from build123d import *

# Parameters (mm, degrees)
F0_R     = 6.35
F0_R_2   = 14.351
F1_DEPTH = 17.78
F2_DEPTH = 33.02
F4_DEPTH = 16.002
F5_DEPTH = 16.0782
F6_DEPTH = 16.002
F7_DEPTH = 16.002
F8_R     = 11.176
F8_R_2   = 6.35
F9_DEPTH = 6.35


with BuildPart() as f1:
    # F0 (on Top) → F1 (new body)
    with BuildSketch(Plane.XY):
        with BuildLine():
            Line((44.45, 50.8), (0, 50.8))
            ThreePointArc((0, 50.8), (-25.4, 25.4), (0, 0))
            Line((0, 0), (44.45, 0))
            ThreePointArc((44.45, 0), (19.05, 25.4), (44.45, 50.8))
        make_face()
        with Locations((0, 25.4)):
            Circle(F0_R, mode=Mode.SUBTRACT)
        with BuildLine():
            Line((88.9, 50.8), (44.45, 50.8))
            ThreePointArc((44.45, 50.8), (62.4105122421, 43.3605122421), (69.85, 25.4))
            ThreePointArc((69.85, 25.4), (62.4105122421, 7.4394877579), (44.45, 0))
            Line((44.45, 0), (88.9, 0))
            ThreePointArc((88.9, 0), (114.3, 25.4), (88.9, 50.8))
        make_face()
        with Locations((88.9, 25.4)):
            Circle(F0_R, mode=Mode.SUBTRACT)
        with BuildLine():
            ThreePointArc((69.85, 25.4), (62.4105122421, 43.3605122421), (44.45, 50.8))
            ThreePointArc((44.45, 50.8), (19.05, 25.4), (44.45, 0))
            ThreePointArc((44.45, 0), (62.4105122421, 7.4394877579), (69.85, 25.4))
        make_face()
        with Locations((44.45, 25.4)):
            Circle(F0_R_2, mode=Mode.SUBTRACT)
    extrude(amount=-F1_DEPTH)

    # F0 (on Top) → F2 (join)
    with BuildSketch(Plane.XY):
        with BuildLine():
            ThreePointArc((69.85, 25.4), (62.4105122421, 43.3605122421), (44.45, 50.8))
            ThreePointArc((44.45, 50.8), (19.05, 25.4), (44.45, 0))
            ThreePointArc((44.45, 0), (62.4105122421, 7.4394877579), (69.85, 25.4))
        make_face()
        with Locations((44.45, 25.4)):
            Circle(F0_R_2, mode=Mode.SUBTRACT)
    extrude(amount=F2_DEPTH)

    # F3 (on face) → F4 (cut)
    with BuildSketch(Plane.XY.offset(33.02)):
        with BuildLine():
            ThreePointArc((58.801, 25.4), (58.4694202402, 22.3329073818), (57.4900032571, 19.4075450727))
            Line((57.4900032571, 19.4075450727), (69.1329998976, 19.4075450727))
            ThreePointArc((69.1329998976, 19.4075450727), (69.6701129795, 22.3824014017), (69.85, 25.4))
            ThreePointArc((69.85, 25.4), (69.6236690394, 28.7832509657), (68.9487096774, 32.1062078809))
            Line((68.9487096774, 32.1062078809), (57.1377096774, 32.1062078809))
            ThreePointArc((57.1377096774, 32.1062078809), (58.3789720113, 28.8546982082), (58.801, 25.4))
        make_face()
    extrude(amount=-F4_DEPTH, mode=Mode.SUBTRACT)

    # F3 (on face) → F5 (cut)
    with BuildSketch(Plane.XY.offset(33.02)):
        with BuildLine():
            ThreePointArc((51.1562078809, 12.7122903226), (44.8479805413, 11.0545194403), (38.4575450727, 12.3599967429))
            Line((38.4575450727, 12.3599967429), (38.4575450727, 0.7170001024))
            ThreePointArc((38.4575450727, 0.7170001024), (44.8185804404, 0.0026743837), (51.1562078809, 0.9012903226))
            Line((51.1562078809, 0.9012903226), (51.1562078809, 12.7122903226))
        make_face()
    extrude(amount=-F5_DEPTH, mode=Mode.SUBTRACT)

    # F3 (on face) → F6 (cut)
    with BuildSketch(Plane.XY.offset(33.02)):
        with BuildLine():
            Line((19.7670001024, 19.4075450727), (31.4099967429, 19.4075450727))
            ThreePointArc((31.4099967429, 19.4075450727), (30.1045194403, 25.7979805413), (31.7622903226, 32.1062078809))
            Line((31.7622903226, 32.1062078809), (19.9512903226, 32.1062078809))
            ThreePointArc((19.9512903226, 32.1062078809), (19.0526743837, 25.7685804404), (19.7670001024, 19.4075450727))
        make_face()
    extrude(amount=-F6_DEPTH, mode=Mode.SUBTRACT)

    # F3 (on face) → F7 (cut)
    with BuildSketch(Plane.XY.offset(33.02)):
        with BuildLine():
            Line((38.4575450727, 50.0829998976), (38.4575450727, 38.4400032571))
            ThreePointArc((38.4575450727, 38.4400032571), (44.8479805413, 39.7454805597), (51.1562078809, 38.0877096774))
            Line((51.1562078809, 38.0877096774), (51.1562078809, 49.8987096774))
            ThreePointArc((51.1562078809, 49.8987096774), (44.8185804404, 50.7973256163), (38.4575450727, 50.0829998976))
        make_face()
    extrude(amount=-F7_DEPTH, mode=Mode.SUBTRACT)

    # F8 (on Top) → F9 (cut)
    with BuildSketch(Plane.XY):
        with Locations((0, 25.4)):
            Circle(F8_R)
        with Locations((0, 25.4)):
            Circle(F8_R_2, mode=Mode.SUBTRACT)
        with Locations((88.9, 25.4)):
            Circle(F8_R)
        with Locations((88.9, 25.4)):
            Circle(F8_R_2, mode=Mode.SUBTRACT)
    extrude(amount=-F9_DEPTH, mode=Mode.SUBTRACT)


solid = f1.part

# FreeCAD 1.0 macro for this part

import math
import FreeCAD as App
import Part
import Sketcher
from FreeCAD import Vector
Q = App.Units.Quantity

doc = App.newDocument("Part")
body = doc.addObject("PartDesign::Body", "Body")

sketch1 = doc.addObject("Sketcher::SketchObject", "Sketch")
body.addObject(sketch1)
sketch1.AttachmentSupport = (doc.XY_Plane, [""])
sketch1.MapMode = "FlatFace"
sketch1.addGeometry(Part.ArcOfCircle(Part.Circle(Vector(0, 25.4, 0), Vector(0, 0, 1), 25.4), math.radians(90), math.radians(270)), False)
sketch1.addGeometry(Part.LineSegment(Vector(0, 0, 0), Vector(88.9, 0, 0)), False)
sketch1.addGeometry(Part.ArcOfCircle(Part.Circle(Vector(88.9, 25.4, 0), Vector(0, 0, 1), 25.4), math.radians(-90), math.radians(90)), False)
sketch1.addGeometry(Part.LineSegment(Vector(88.9, 50.8, 0), Vector(0, 50.8, 0)), False)
sketch1.addGeometry(Part.Circle(Vector(0, 25.4, 0), Vector(0, 0, 1), 6.35), False)
sketch1.addGeometry(Part.Circle(Vector(44.45, 25.4, 0), Vector(0, 0, 1), 14.351), False)
sketch1.addGeometry(Part.Circle(Vector(88.9, 25.4, 0), Vector(0, 0, 1), 6.35), False)
sketch1.addConstraint(Sketcher.Constraint("Tangent", 0, 2, 1, 1))
sketch1.addConstraint(Sketcher.Constraint("Tangent", 1, 2, 2, 1))
sketch1.addConstraint(Sketcher.Constraint("Tangent", 2, 2, 3, 1))
sketch1.addConstraint(Sketcher.Constraint("Tangent", 3, 2, 0, 1))
sketch1.addConstraint(Sketcher.Constraint("Horizontal", 1))
sketch1.addConstraint(Sketcher.Constraint("Horizontal", 3))
sketch1.addConstraint(Sketcher.Constraint("Coincident", 0, 2, -1, 1))
sketch1.addConstraint(Sketcher.Constraint("Coincident", 4, 3, 0, 3))
sketch1.addConstraint(Sketcher.Constraint("Coincident", 6, 3, 2, 3))
sketch1.addConstraint(Sketcher.Constraint("Equal", 4, 6))
sketch1.addConstraint(Sketcher.Constraint("Horizontal", 4, 3, 5, 3))
sketch1.addConstraint(Sketcher.Constraint("Radius", 0, Q("1 in")))
sketch1.addConstraint(Sketcher.Constraint("Diameter", 4, Q("0.5 in")))
sketch1.addConstraint(Sketcher.Constraint("Diameter", 5, Q("1.13 in")))
sketch1.addConstraint(Sketcher.Constraint("DistanceX", 1, 1, 1, 2, Q("3.5 in")))
sketch1.addConstraint(Sketcher.Constraint("DistanceX", -1, 1, 5, 3, Q("1.75 in")))
pad1 = doc.addObject("PartDesign::Pad", "Pad")
body.addObject(pad1)
pad1.Profile = sketch1
pad1.Length = Q("0.7 in")
pad1.Reversed = True

sketch2 = doc.addObject("Sketcher::SketchObject", "Sketch001")
body.addObject(sketch2)
sketch2.AttachmentSupport = (doc.XY_Plane, [""])
sketch2.MapMode = "FlatFace"
sketch2.addGeometry(Part.ArcOfCircle(Part.Circle(Vector(44.45, 25.4, 0), Vector(0, 0, 1), 25.4), math.radians(0), math.radians(90)), False)
sketch2.addGeometry(Part.ArcOfCircle(Part.Circle(Vector(44.45, 25.4, 0), Vector(0, 0, 1), 25.4), math.radians(90), math.radians(270)), False)
sketch2.addGeometry(Part.ArcOfCircle(Part.Circle(Vector(44.45, 25.4, 0), Vector(0, 0, 1), 25.4), math.radians(-90), math.radians(0)), False)
sketch2.addGeometry(Part.Circle(Vector(44.45, 25.4, 0), Vector(0, 0, 1), 14.351), False)
sketch2.addConstraint(Sketcher.Constraint("Tangent", 0, 2, 1, 1))
sketch2.addConstraint(Sketcher.Constraint("Tangent", 1, 2, 2, 1))
sketch2.addConstraint(Sketcher.Constraint("Tangent", 2, 2, 0, 1))
sketch2.addConstraint(Sketcher.Constraint("Coincident", 3, 3, 0, 3))
sketch2.addConstraint(Sketcher.Constraint("PointOnObject", 1, 2, -1))
sketch2.addConstraint(Sketcher.Constraint("Horizontal", 3, 3, 2, 2))
sketch2.addConstraint(Sketcher.Constraint("Vertical", 3, 3, 0, 2))
sketch2.addConstraint(Sketcher.Constraint("Vertical", 0, 2, 1, 2))
sketch2.addConstraint(Sketcher.Constraint("Radius", 0, Q("1 in")))
sketch2.addConstraint(Sketcher.Constraint("Diameter", 3, Q("1.13 in")))
sketch2.addConstraint(Sketcher.Constraint("DistanceX", -1, 1, 0, 3, Q("1.75 in")))
pad2 = doc.addObject("PartDesign::Pad", "Pad001")
body.addObject(pad2)
pad2.Profile = sketch2
pad2.Length = Q("1.3 in")

sketch3 = doc.addObject("Sketcher::SketchObject", "Sketch002")
body.addObject(sketch3)
sketch3.AttachmentSupport = (doc.XY_Plane, [""])
sketch3.MapMode = "FlatFace"
sketch3.AttachmentOffset = App.Placement(Vector(0, 0, 1.3 * 25.4), App.Rotation())
sketch3.addGeometry(Part.ArcOfCircle(Part.Circle(Vector(44.45, 25.4, 0), Vector(0, 0, 1), 14.351), math.radians(-24.680861), math.radians(0)), False)
sketch3.addGeometry(Part.LineSegment(Vector(57.490003, 19.407545, 0), Vector(69.133, 19.407545, 0)), False)
sketch3.addGeometry(Part.ArcOfCircle(Part.Circle(Vector(44.45, 25.4, 0), Vector(0, 0, 1), 25.4), math.radians(-13.646062), math.radians(0)), False)
sketch3.addGeometry(Part.ArcOfCircle(Part.Circle(Vector(44.45, 25.4, 0), Vector(0, 0, 1), 25.4), math.radians(0), math.radians(15.308963)), False)
sketch3.addGeometry(Part.LineSegment(Vector(68.94871, 32.106208, 0), Vector(57.13771, 32.106208, 0)), False)
sketch3.addGeometry(Part.ArcOfCircle(Part.Circle(Vector(44.45, 25.4, 0), Vector(0, 0, 1), 14.351), math.radians(0), math.radians(27.859111)), False)
sketch3.addConstraint(Sketcher.Constraint("Coincident", 0, 1, 1, 1))
sketch3.addConstraint(Sketcher.Constraint("Coincident", 1, 2, 2, 1))
sketch3.addConstraint(Sketcher.Constraint("Tangent", 2, 2, 3, 1))
sketch3.addConstraint(Sketcher.Constraint("Coincident", 3, 2, 4, 1))
sketch3.addConstraint(Sketcher.Constraint("Coincident", 4, 2, 5, 2))
sketch3.addConstraint(Sketcher.Constraint("Tangent", 5, 1, 0, 2))
sketch3.addConstraint(Sketcher.Constraint("Horizontal", 1))
sketch3.addConstraint(Sketcher.Constraint("Horizontal", 4))
sketch3.addConstraint(Sketcher.Constraint("Coincident", 2, 3, 0, 3))
sketch3.addConstraint(Sketcher.Constraint("Equal", 2, 3))
sketch3.addConstraint(Sketcher.Constraint("Equal", 0, 5))
sketch3.addConstraint(Sketcher.Constraint("Horizontal", 5, 3, 2, 2))
sketch3.addConstraint(Sketcher.Constraint("Horizontal", 2, 2, 5, 1))
sketch3.addConstraint(Sketcher.Constraint("Radius", 2, Q("1 in")))
sketch3.addConstraint(Sketcher.Constraint("DistanceY", -1, 1, 0, 3, Q("1 in")))
sketch3.addConstraint(Sketcher.Constraint("Radius", 0, Q("0.565 in")))
sketch3.addConstraint(Sketcher.Constraint("DistanceX", 4, 2, 4, 1, Q("0.465 in")))
sketch3.addConstraint(Sketcher.Constraint("DistanceX", -1, 1, 0, 3, Q("1.75 in")))
sketch3.addConstraint(Sketcher.Constraint("DistanceX", -1, 1, 1, 2, 69.133))
pocket1 = doc.addObject("PartDesign::Pocket", "Pocket")
body.addObject(pocket1)
pocket1.Profile = sketch3
pocket1.Length = Q("0.63 in")

sketch4 = doc.addObject("Sketcher::SketchObject", "Sketch003")
body.addObject(sketch4)
sketch4.AttachmentSupport = (doc.XY_Plane, [""])
sketch4.MapMode = "FlatFace"
sketch4.AttachmentOffset = App.Placement(Vector(0, 0, 1.3 * 25.4), App.Rotation())
sketch4.addGeometry(Part.ArcOfCircle(Part.Circle(Vector(44.45, 25.4, 0), Vector(0, 0, 1), 14.351), math.radians(-114.680861), math.radians(-62.140889)), False)
sketch4.addGeometry(Part.LineSegment(Vector(38.457545, 12.359997, 0), Vector(38.457545, 0.717, 0)), False)
sketch4.addGeometry(Part.ArcOfCircle(Part.Circle(Vector(44.45, 25.4, 0), Vector(0, 0, 1), 25.4), math.radians(-103.646062), math.radians(-74.691037)), False)
sketch4.addGeometry(Part.LineSegment(Vector(51.156208, 0.90129, 0), Vector(51.156208, 12.71229, 0)), False)
sketch4.addConstraint(Sketcher.Constraint("Coincident", 0, 1, 1, 1))
sketch4.addConstraint(Sketcher.Constraint("Coincident", 1, 2, 2, 1))
sketch4.addConstraint(Sketcher.Constraint("Coincident", 2, 2, 3, 1))
sketch4.addConstraint(Sketcher.Constraint("Coincident", 3, 2, 0, 2))
sketch4.addConstraint(Sketcher.Constraint("Vertical", 1))
sketch4.addConstraint(Sketcher.Constraint("Vertical", 3))
sketch4.addConstraint(Sketcher.Constraint("Coincident", 2, 3, 0, 3))
sketch4.addConstraint(Sketcher.Constraint("Radius", 2, Q("1 in")))
sketch4.addConstraint(Sketcher.Constraint("DistanceY", -1, 1, 0, 3, Q("1 in")))
sketch4.addConstraint(Sketcher.Constraint("Radius", 0, Q("0.565 in")))
sketch4.addConstraint(Sketcher.Constraint("DistanceY", 3, 1, 3, 2, Q("0.465 in")))
sketch4.addConstraint(Sketcher.Constraint("DistanceX", -1, 1, 0, 3, Q("1.75 in")))
sketch4.addConstraint(Sketcher.Constraint("DistanceY", -1, 1, 1, 2, 0.717))
pocket2 = doc.addObject("PartDesign::Pocket", "Pocket001")
body.addObject(pocket2)
pocket2.Profile = sketch4
pocket2.Length = Q("0.633 in")

sketch5 = doc.addObject("Sketcher::SketchObject", "Sketch004")
body.addObject(sketch5)
sketch5.AttachmentSupport = (doc.XY_Plane, [""])
sketch5.MapMode = "FlatFace"
sketch5.AttachmentOffset = App.Placement(Vector(0, 0, 1.3 * 25.4), App.Rotation())
sketch5.addGeometry(Part.LineSegment(Vector(19.767, 19.407545, 0), Vector(31.409997, 19.407545, 0)), False)
sketch5.addGeometry(Part.ArcOfCircle(Part.Circle(Vector(44.45, 25.4, 0), Vector(0, 0, 1), 14.351), math.radians(152.140889), math.radians(204.680861)), False)
sketch5.addGeometry(Part.LineSegment(Vector(31.76229, 32.106208, 0), Vector(19.95129, 32.106208, 0)), False)
sketch5.addGeometry(Part.ArcOfCircle(Part.Circle(Vector(44.45, 25.4, 0), Vector(0, 0, 1), 25.4), math.radians(164.691037), math.radians(193.646062)), False)
sketch5.addConstraint(Sketcher.Constraint("Coincident", 0, 2, 1, 2))
sketch5.addConstraint(Sketcher.Constraint("Coincident", 1, 1, 2, 1))
sketch5.addConstraint(Sketcher.Constraint("Coincident", 2, 2, 3, 1))
sketch5.addConstraint(Sketcher.Constraint("Coincident", 3, 2, 0, 1))
sketch5.addConstraint(Sketcher.Constraint("Horizontal", 0))
sketch5.addConstraint(Sketcher.Constraint("Horizontal", 2))
sketch5.addConstraint(Sketcher.Constraint("Coincident", 3, 3, 1, 3))
sketch5.addConstraint(Sketcher.Constraint("Radius", 3, Q("1 in")))
sketch5.addConstraint(Sketcher.Constraint("DistanceY", -1, 1, 1, 3, Q("1 in")))
sketch5.addConstraint(Sketcher.Constraint("Radius", 1, Q("0.565 in")))
sketch5.addConstraint(Sketcher.Constraint("DistanceX", 2, 2, 2, 1, Q("0.465 in")))
sketch5.addConstraint(Sketcher.Constraint("DistanceX", -1, 1, 1, 3, Q("1.75 in")))
sketch5.addConstraint(Sketcher.Constraint("DistanceX", -1, 1, 3, 2, 19.767))
pocket3 = doc.addObject("PartDesign::Pocket", "Pocket002")
body.addObject(pocket3)
pocket3.Profile = sketch5
pocket3.Length = Q("0.63 in")

sketch6 = doc.addObject("Sketcher::SketchObject", "Sketch005")
body.addObject(sketch6)
sketch6.AttachmentSupport = (doc.XY_Plane, [""])
sketch6.MapMode = "FlatFace"
sketch6.AttachmentOffset = App.Placement(Vector(0, 0, 1.3 * 25.4), App.Rotation())
sketch6.addGeometry(Part.LineSegment(Vector(38.457545, 50.083, 0), Vector(38.457545, 38.440003, 0)), False)
sketch6.addGeometry(Part.ArcOfCircle(Part.Circle(Vector(44.45, 25.4, 0), Vector(0, 0, 1), 14.351), math.radians(62.140889), math.radians(114.680861)), False)
sketch6.addGeometry(Part.LineSegment(Vector(51.156208, 38.08771, 0), Vector(51.156208, 49.89871, 0)), False)
sketch6.addGeometry(Part.ArcOfCircle(Part.Circle(Vector(44.45, 25.4, 0), Vector(0, 0, 1), 25.4), math.radians(74.691037), math.radians(103.646062)), False)
sketch6.addConstraint(Sketcher.Constraint("Coincident", 0, 2, 1, 2))
sketch6.addConstraint(Sketcher.Constraint("Coincident", 1, 1, 2, 1))
sketch6.addConstraint(Sketcher.Constraint("Coincident", 2, 2, 3, 1))
sketch6.addConstraint(Sketcher.Constraint("Coincident", 3, 2, 0, 1))
sketch6.addConstraint(Sketcher.Constraint("Vertical", 0))
sketch6.addConstraint(Sketcher.Constraint("Vertical", 2))
sketch6.addConstraint(Sketcher.Constraint("Coincident", 3, 3, 1, 3))
sketch6.addConstraint(Sketcher.Constraint("Radius", 3, Q("1 in")))
sketch6.addConstraint(Sketcher.Constraint("DistanceY", -1, 1, 1, 3, Q("1 in")))
sketch6.addConstraint(Sketcher.Constraint("Radius", 1, Q("0.565 in")))
sketch6.addConstraint(Sketcher.Constraint("DistanceY", 2, 1, 2, 2, Q("0.465 in")))
sketch6.addConstraint(Sketcher.Constraint("DistanceX", -1, 1, 1, 3, Q("1.75 in")))
sketch6.addConstraint(Sketcher.Constraint("DistanceY", -1, 1, 3, 2, 50.083))
pocket4 = doc.addObject("PartDesign::Pocket", "Pocket003")
body.addObject(pocket4)
pocket4.Profile = sketch6
pocket4.Length = Q("0.63 in")

sketch7 = doc.addObject("Sketcher::SketchObject", "Sketch006")
body.addObject(sketch7)
sketch7.AttachmentSupport = (doc.XY_Plane, [""])
sketch7.MapMode = "FlatFace"
sketch7.addGeometry(Part.Circle(Vector(0, 25.4, 0), Vector(0, 0, 1), 11.176), False)
sketch7.addGeometry(Part.Circle(Vector(0, 25.4, 0), Vector(0, 0, 1), 6.35), False)
sketch7.addGeometry(Part.Circle(Vector(88.9, 25.4, 0), Vector(0, 0, 1), 11.176), False)
sketch7.addGeometry(Part.Circle(Vector(88.9, 25.4, 0), Vector(0, 0, 1), 6.35), False)
sketch7.addConstraint(Sketcher.Constraint("Coincident", 1, 3, 0, 3))
sketch7.addConstraint(Sketcher.Constraint("Coincident", 3, 3, 2, 3))
sketch7.addConstraint(Sketcher.Constraint("Equal", 0, 2))
sketch7.addConstraint(Sketcher.Constraint("Equal", 1, 3))
sketch7.addConstraint(Sketcher.Constraint("PointOnObject", 0, 3, -2))
sketch7.addConstraint(Sketcher.Constraint("Horizontal", 1, 3, 2, 3))
sketch7.addConstraint(Sketcher.Constraint("Diameter", 1, Q("0.5 in")))
sketch7.addConstraint(Sketcher.Constraint("Diameter", 0, Q("0.88 in")))
sketch7.addConstraint(Sketcher.Constraint("DistanceY", -1, 1, 0, 3, Q("1 in")))
sketch7.addConstraint(Sketcher.Constraint("DistanceX", -1, 1, 2, 3, Q("3.5 in")))
pocket5 = doc.addObject("PartDesign::Pocket", "Pocket004")
body.addObject(pocket5)
pocket5.Profile = sketch7
pocket5.Length = Q("0.25 in")

doc.recompute()
